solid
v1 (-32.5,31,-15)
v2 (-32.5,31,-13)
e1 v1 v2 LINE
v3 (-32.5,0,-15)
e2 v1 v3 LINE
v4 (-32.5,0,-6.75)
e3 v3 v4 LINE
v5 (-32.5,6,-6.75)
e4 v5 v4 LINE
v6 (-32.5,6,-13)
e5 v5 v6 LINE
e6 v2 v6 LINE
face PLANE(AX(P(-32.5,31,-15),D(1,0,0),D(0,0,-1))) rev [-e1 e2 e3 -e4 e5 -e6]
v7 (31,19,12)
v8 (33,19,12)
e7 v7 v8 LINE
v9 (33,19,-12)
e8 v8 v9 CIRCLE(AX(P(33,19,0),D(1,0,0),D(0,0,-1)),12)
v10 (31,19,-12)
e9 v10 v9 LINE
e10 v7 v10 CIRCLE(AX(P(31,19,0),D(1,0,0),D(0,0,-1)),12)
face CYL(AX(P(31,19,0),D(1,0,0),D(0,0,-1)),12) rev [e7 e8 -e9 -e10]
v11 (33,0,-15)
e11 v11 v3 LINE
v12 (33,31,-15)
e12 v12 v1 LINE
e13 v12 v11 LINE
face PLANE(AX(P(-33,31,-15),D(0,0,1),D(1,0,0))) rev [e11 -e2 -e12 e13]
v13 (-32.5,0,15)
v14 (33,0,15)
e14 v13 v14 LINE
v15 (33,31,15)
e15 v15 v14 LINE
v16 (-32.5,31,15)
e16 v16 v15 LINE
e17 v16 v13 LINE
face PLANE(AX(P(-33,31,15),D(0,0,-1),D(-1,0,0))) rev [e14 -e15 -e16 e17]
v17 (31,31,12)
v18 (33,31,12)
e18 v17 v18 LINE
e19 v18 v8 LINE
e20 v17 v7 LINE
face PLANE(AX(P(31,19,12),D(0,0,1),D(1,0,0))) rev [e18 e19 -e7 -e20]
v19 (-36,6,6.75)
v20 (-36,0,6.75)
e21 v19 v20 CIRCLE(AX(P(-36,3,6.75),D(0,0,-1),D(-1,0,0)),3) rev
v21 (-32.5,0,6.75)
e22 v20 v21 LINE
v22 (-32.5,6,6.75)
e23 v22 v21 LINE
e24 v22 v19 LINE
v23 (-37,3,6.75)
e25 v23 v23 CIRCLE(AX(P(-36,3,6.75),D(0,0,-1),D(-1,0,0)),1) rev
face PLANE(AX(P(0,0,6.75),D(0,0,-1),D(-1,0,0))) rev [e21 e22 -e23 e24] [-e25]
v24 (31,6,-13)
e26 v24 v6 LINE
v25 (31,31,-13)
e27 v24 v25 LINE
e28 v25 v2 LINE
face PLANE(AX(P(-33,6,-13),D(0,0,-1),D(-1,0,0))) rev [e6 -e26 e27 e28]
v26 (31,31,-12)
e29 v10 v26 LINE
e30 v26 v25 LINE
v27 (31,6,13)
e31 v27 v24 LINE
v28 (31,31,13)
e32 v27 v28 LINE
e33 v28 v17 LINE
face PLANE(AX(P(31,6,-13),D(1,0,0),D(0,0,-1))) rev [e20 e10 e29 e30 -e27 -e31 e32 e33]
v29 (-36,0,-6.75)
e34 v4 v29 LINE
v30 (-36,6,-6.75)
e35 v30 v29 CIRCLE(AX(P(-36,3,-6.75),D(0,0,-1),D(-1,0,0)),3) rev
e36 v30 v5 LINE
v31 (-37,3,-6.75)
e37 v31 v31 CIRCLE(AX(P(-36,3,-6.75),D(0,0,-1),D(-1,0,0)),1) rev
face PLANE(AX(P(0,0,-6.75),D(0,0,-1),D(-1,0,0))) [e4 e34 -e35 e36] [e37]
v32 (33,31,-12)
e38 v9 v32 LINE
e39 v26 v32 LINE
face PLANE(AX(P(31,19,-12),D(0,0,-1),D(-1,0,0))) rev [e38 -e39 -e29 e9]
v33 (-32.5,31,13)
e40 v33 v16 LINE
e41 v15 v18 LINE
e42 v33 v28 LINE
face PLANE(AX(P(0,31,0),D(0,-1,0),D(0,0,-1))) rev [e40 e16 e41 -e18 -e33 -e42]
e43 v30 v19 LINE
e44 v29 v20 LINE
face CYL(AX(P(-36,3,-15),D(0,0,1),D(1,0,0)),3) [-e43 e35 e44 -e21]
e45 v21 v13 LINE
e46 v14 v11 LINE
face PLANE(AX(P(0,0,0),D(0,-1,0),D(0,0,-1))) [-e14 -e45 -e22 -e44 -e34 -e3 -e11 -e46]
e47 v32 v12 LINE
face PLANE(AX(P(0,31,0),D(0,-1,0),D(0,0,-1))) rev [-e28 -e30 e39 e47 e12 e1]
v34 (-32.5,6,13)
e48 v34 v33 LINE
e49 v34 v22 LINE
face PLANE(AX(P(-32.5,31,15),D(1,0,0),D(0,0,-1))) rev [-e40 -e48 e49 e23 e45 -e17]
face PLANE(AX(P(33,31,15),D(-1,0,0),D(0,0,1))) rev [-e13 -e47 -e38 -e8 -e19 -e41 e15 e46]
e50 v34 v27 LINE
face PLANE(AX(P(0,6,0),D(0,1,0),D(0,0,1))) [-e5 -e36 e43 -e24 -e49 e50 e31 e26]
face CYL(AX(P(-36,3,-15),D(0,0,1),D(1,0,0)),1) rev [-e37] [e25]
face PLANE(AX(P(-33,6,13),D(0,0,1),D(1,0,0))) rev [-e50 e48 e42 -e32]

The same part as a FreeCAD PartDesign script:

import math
import FreeCAD as App
import Part
import Sketcher

doc = App.newDocument("Part")
params = doc.addObject("Spreadsheet::Sheet", "Params")
for row, (alias, value) in enumerate([
    ("sketch1_width", "66 mm"),
    ("sketch1_height", "30 mm"),
    ("pad1_length", "31 mm"),
    ("sketch2_width", "64 mm"),
    ("sketch2_height", "26 mm"),
    ("pocket1_length", "25 mm"),
    ("sketch3_diameter", "2 mm"),
    ("sketch3_radius", "3 mm"),
    ("sketch3_width", "3 mm"),
    ("pad2_length", "30 mm"),
    ("sketch4_width", "6 mm"),
    ("pocket2_length", "8.25 mm"),
    ("sketch5_width", "6 mm"),
    ("pocket3_length", "8.25 mm"),
    ("sketch6_width", "0.5 mm"),
    ("sketch6_height", "8.25 mm"),
    ("pocket4_length", "31 mm"),
    ("sketch7_radius", "12 mm"),
    ("sketch7_width", "12 mm"),
    ("pocket5_length", "2 mm"),
], start=1):
    params.set(f"A{row}", alias)
    params.set(f"B{row}", "=" + value)
    params.setAlias(f"B{row}", alias)

body = doc.addObject("PartDesign::Body", "Body")

sketch1 = doc.addObject("Sketcher::SketchObject", "Sketch")
body.addObject(sketch1)
sketch1.AttachmentSupport = (doc.XZ_Plane, [""])
sketch1.MapMode = "FlatFace"
sketch1.addGeometry([
    Part.LineSegment(App.Vector(-33, -15, 0), App.Vector(-33, 15, 0)),
    Part.LineSegment(App.Vector(-33, 15, 0), App.Vector(33, 15, 0)),
    Part.LineSegment(App.Vector(33, 15, 0), App.Vector(33, -15, 0)),
    Part.LineSegment(App.Vector(33, -15, 0), App.Vector(-33, -15, 0)),
], False)
sketch1.addConstraint([
    Sketcher.Constraint("Coincident", 0, 2, 1, 1),
    Sketcher.Constraint("Coincident", 1, 2, 2, 1),
    Sketcher.Constraint("Coincident", 2, 2, 3, 1),
    Sketcher.Constraint("Coincident", 3, 2, 0, 1),
    Sketcher.Constraint("Vertical", 0),
    Sketcher.Constraint("Horizontal", 1),
    Sketcher.Constraint("Vertical", 2),
    Sketcher.Constraint("Horizontal", 3),
    Sketcher.Constraint("Symmetric", 0, 2, 2, 2, -1, 1),
    Sketcher.Constraint("DistanceX", 1, 1, 1, 2, 66.0),
    Sketcher.Constraint("DistanceY", 0, 1, 0, 2, 30.0),
])
sketch1.setExpression("Constraints[9]", "Params.sketch1_width")
sketch1.setExpression("Constraints[10]", "Params.sketch1_height")
pad1 = doc.addObject("PartDesign::Pad", "Pad")
body.addObject(pad1)
pad1.Profile = sketch1
pad1.setExpression("Length", "Params.pad1_length")
pad1.Reversed = True

sketch2 = doc.addObject("Sketcher::SketchObject", "Sketch001")
body.addObject(sketch2)
sketch2.AttachmentSupport = (doc.XZ_Plane, [""])
sketch2.MapMode = "FlatFace"
sketch2.AttachmentOffset = App.Placement(App.Vector(0, 0, -31), App.Rotation())
sketch2.addGeometry([
    Part.LineSegment(App.Vector(-33, -13, 0), App.Vector(-33, 13, 0)),
    Part.LineSegment(App.Vector(-33, 13, 0), App.Vector(31, 13, 0)),
    Part.LineSegment(App.Vector(31, 13, 0), App.Vector(31, -13, 0)),
    Part.LineSegment(App.Vector(31, -13, 0), App.Vector(-33, -13, 0)),
], False)
sketch2.addConstraint([
    Sketcher.Constraint("Coincident", 0, 2, 1, 1),
    Sketcher.Constraint("Coincident", 1, 2, 2, 1),
    Sketcher.Constraint("Coincident", 2, 2, 3, 1),
    Sketcher.Constraint("Coincident", 3, 2, 0, 1),
    Sketcher.Constraint("Vertical", 0),
    Sketcher.Constraint("Horizontal", 1),
    Sketcher.Constraint("Vertical", 2),
    Sketcher.Constraint("Horizontal", 3),
    Sketcher.Constraint("DistanceX", 1, 1, 1, 2, 64.0),
    Sketcher.Constraint("DistanceY", 0, 1, 0, 2, 26.0),
    Sketcher.Constraint("DistanceX", 0, 2, -1, 1, 33.0),
    Sketcher.Constraint("DistanceY", -1, 1, 0, 2, 13.0),
])
sketch2.setExpression("Constraints[8]", "Params.sketch2_width")
sketch2.setExpression("Constraints[9]", "Params.sketch2_height")
pocket1 = doc.addObject("PartDesign::Pocket", "Pocket")
body.addObject(pocket1)
pocket1.Profile = sketch2
pocket1.setExpression("Length", "Params.pocket1_length")
pocket1.Reversed = True

sketch3 = doc.addObject("Sketcher::SketchObject", "Sketch002")
body.addObject(sketch3)
sketch3.AttachmentSupport = (doc.XY_Plane, [""])
sketch3.MapMode = "FlatFace"
sketch3.AttachmentOffset = App.Placement(App.Vector(0, 0, 15), App.Rotation())
sketch3.addGeometry([
    Part.LineSegment(App.Vector(-36, 0, 0), App.Vector(-33, 0, 0)),
    Part.LineSegment(App.Vector(-33, 0, 0), App.Vector(-33, 6, 0)),
    Part.LineSegment(App.Vector(-33, 6, 0), App.Vector(-36, 6, 0)),
    Part.ArcOfCircle(Part.Circle(App.Vector(-36, 3, 0), App.Vector(0, 0, 1), 3), math.radians(90), math.radians(270)),
    Part.Circle(App.Vector(-36, 3, 0), App.Vector(0, 0, 1), 1),
], False)
sketch3.addConstraint([
    Sketcher.Constraint("Coincident", 0, 2, 1, 1),
    Sketcher.Constraint("Coincident", 1, 2, 2, 1),
    Sketcher.Constraint("Tangent", 2, 2, 3, 1),
    Sketcher.Constraint("Tangent", 3, 2, 0, 1),
    Sketcher.Constraint("Horizontal", 0),
    Sketcher.Constraint("Vertical", 1),
    Sketcher.Constraint("Horizontal", 2),
    Sketcher.Constraint("Coincident", 4, 3, 3, 3),
    Sketcher.Constraint("PointOnObject", 0, 2, -1),
    Sketcher.Constraint("Diameter", 4, 2.0),
    Sketcher.Constraint("Radius", 3, 3.0),
    Sketcher.Constraint("DistanceX", 0, 1, 0, 2, 3.0),
    Sketcher.Constraint("DistanceX", 3, 3, -1, 1, 36.0),
])
sketch3.setExpression("Constraints[9]", "Params.sketch3_diameter")
sketch3.setExpression("Constraints[10]", "Params.sketch3_radius")
sketch3.setExpression("Constraints[11]", "Params.sketch3_width")
pad2 = doc.addObject("PartDesign::Pad", "Pad001")
body.addObject(pad2)
pad2.Profile = sketch3
pad2.setExpression("Length", "Params.pad2_length")
pad2.Reversed = True

sketch4 = doc.addObject("Sketcher::SketchObject", "Sketch003")
body.addObject(sketch4)
sketch4.AttachmentSupport = (doc.XY_Plane, [""])
sketch4.MapMode = "FlatFace"
sketch4.AttachmentOffset = App.Placement(App.Vector(0, 0, 15), App.Rotation())
sketch4.addGeometry([
    Part.LineSegment(App.Vector(-39, 6, 0), App.Vector(-39, 0, 0)),
    Part.LineSegment(App.Vector(-39, 0, 0), App.Vector(-33, 0, 0)),
    Part.LineSegment(App.Vector(-33, 0, 0), App.Vector(-33, 6, 0)),
    Part.LineSegment(App.Vector(-33, 6, 0), App.Vector(-39, 6, 0)),
], False)
sketch4.addConstraint([
    Sketcher.Constraint("Coincident", 0, 2, 1, 1),
    Sketcher.Constraint("Coincident", 1, 2, 2, 1),
    Sketcher.Constraint("Coincident", 2, 2, 3, 1),
    Sketcher.Constraint("Coincident", 3, 2, 0, 1),
    Sketcher.Constraint("Vertical", 0),
    Sketcher.Constraint("Horizontal", 1),
    Sketcher.Constraint("Vertical", 2),
    Sketcher.Constraint("Horizontal", 3),
    Sketcher.Constraint("PointOnObject", 0, 2, -1),
    Sketcher.Constraint("Equal", 3, 0),
    Sketcher.Constraint("DistanceX", 1, 1, 1, 2, 6.0),
    Sketcher.Constraint("DistanceX", 0, 2, -1, 1, 39.0),
])
sketch4.setExpression("Constraints[10]", "Params.sketch4_width")
pocket2 = doc.addObject("PartDesign::Pocket", "Pocket001")
body.addObject(pocket2)
pocket2.Profile = sketch4
pocket2.setExpression("Length", "Params.pocket2_length")

sketch5 = doc.addObject("Sketcher::SketchObject", "Sketch004")
body.addObject(sketch5)
sketch5.AttachmentSupport = (doc.XY_Plane, [""])
sketch5.MapMode = "FlatFace"
sketch5.AttachmentOffset = App.Placement(App.Vector(0, 0, -15), App.Rotation())
sketch5.addGeometry([
    Part.LineSegment(App.Vector(-33, 6, 0), App.Vector(-33, 0, 0)),
    Part.LineSegment(App.Vector(-33, 0, 0), App.Vector(-39, 0, 0)),
    Part.LineSegment(App.Vector(-39, 0, 0), App.Vector(-39, 6, 0)),
    Part.LineSegment(App.Vector(-39, 6, 0), App.Vector(-33, 6, 0)),
], False)
sketch5.addConstraint([
    Sketcher.Constraint("Coincident", 0, 2, 1, 1),
    Sketcher.Constraint("Coincident", 1, 2, 2, 1),
    Sketcher.Constraint("Coincident", 2, 2, 3, 1),
    Sketcher.Constraint("Coincident", 3, 2, 0, 1),
    Sketcher.Constraint("Vertical", 0),
    Sketcher.Constraint("Horizontal", 1),
    Sketcher.Constraint("Vertical", 2),
    Sketcher.Constraint("Horizontal", 3),
    Sketcher.Constraint("PointOnObject", 0, 2, -1),
    Sketcher.Constraint("Equal", 3, 0),
    Sketcher.Constraint("DistanceX", 1, 2, 1, 1, 6.0),
    Sketcher.Constraint("DistanceX", 0, 2, -1, 1, 33.0),
])
sketch5.setExpression("Constraints[10]", "Params.sketch5_width")
pocket3 = doc.addObject("PartDesign::Pocket", "Pocket002")
body.addObject(pocket3)
pocket3.Profile = sketch5
pocket3.setExpression("Length", "Params.pocket3_length")
pocket3.Reversed = True

sketch6 = doc.addObject("Sketcher::SketchObject", "Sketch005")
body.addObject(sketch6)
sketch6.AttachmentSupport = (doc.XZ_Plane, [""])
sketch6.MapMode = "FlatFace"
sketch6.addGeometry([
    Part.LineSegment(App.Vector(-33, -6.8, 0), App.Vector(-33, -15, 0)),
    Part.LineSegment(App.Vector(-33, -15, 0), App.Vector(-32.5, -15, 0)),
    Part.LineSegment(App.Vector(-32.5, -15, 0), App.Vector(-32.5, -6.8, 0)),
    Part.LineSegment(App.Vector(-32.5, -6.8, 0), App.Vector(-33, -6.8, 0)),
    Part.LineSegment(App.Vector(-33, 15, 0), App.Vector(-33, 6.8, 0)),
    Part.LineSegment(App.Vector(-33, 6.8, 0), App.Vector(-32.5, 6.8, 0)),
    Part.LineSegment(App.Vector(-32.5, 6.8, 0), App.Vector(-32.5, 15, 0)),
    Part.LineSegment(App.Vector(-32.5, 15, 0), App.Vector(-33, 15, 0)),
], False)
sketch6.addConstraint([
    Sketcher.Constraint("Coincident", 0, 2, 1, 1),
    Sketcher.Constraint("Coincident", 1, 2, 2, 1),
    Sketcher.Constraint("Coincident", 2, 2, 3, 1),
    Sketcher.Constraint("Coincident", 3, 2, 0, 1),
    Sketcher.Constraint("Coincident", 4, 2, 5, 1),
    Sketcher.Constraint("Coincident", 5, 2, 6, 1),
    Sketcher.Constraint("Coincident", 6, 2, 7, 1),
    Sketcher.Constraint("Coincident", 7, 2, 4, 1),
    Sketcher.Constraint("Vertical", 0),
    Sketcher.Constraint("Horizontal", 1),
    Sketcher.Constraint("Vertical", 2),
    Sketcher.Constraint("Horizontal", 3),
    Sketcher.Constraint("Vertical", 4),
    Sketcher.Constraint("Horizontal", 5),
    Sketcher.Constraint("Vertical", 6),
    Sketcher.Constraint("Horizontal", 7),
    Sketcher.Constraint("Symmetric", 3, 2, 4, 2, -1),
    Sketcher.Constraint("Symmetric", 1, 2, 6, 2, -1),
    Sketcher.Constraint("DistanceX", 1, 1, 1, 2, 0.5),
    Sketcher.Constraint("DistanceX", 0, 2, -1, 1, 33.0),
    Sketcher.Constraint("DistanceY", 0, 2, -1, 1, 15.0),
    Sketcher.Constraint("DistanceY", 0, 2, 0, 1, 8.25),
])
sketch6.setExpression("Constraints[18]", "Params.sketch6_width")
sketch6.setExpression("Constraints[21]", "Params.sketch6_height")
pocket4 = doc.addObject("PartDesign::Pocket", "Pocket003")
body.addObject(pocket4)
pocket4.Profile = sketch6
pocket4.setExpression("Length", "Params.pocket4_length")

sketch7 = doc.addObject("Sketcher::SketchObject", "Sketch006")
body.addObject(sketch7)
sketch7.AttachmentSupport = (doc.YZ_Plane, [""])
sketch7.MapMode = "FlatFace"
sketch7.AttachmentOffset = App.Placement(App.Vector(0, 0, 33), App.Rotation())
sketch7.addGeometry([
    Part.LineSegment(App.Vector(19, -12, 0), App.Vector(31, -12, 0)),
    Part.LineSegment(App.Vector(31, -12, 0), App.Vector(31, 12, 0)),
    Part.LineSegment(App.Vector(31, 12, 0), App.Vector(19, 12, 0)),
    Part.ArcOfCircle(Part.Circle(App.Vector(19, 0, 0), App.Vector(0, 0, 1), 12), math.radians(90), math.radians(270)),
], False)
sketch7.addConstraint([
    Sketcher.Constraint("Coincident", 0, 2, 1, 1),
    Sketcher.Constraint("Coincident", 1, 2, 2, 1),
    Sketcher.Constraint("Tangent", 2, 2, 3, 1),
    Sketcher.Constraint("Tangent", 3, 2, 0, 1),
    Sketcher.Constraint("Horizontal", 0),
    Sketcher.Constraint("Vertical", 1),
    Sketcher.Constraint("Horizontal", 2),
    Sketcher.Constraint("PointOnObject", 3, 3, -1),
    Sketcher.Constraint("Radius", 3, 12.0),
    Sketcher.Constraint("DistanceX", 0, 1, 0, 2, 12.0),
    Sketcher.Constraint("DistanceX", -1, 1, 3, 3, 19.0),
])
sketch7.setExpression("Constraints[8]", "Params.sketch7_radius")
sketch7.setExpression("Constraints[9]", "Params.sketch7_width")
pocket5 = doc.addObject("PartDesign::Pocket", "Pocket004")
body.addObject(pocket5)
pocket5.Profile = sketch7
pocket5.setExpression("Length", "Params.pocket5_length")

doc.recompute()
